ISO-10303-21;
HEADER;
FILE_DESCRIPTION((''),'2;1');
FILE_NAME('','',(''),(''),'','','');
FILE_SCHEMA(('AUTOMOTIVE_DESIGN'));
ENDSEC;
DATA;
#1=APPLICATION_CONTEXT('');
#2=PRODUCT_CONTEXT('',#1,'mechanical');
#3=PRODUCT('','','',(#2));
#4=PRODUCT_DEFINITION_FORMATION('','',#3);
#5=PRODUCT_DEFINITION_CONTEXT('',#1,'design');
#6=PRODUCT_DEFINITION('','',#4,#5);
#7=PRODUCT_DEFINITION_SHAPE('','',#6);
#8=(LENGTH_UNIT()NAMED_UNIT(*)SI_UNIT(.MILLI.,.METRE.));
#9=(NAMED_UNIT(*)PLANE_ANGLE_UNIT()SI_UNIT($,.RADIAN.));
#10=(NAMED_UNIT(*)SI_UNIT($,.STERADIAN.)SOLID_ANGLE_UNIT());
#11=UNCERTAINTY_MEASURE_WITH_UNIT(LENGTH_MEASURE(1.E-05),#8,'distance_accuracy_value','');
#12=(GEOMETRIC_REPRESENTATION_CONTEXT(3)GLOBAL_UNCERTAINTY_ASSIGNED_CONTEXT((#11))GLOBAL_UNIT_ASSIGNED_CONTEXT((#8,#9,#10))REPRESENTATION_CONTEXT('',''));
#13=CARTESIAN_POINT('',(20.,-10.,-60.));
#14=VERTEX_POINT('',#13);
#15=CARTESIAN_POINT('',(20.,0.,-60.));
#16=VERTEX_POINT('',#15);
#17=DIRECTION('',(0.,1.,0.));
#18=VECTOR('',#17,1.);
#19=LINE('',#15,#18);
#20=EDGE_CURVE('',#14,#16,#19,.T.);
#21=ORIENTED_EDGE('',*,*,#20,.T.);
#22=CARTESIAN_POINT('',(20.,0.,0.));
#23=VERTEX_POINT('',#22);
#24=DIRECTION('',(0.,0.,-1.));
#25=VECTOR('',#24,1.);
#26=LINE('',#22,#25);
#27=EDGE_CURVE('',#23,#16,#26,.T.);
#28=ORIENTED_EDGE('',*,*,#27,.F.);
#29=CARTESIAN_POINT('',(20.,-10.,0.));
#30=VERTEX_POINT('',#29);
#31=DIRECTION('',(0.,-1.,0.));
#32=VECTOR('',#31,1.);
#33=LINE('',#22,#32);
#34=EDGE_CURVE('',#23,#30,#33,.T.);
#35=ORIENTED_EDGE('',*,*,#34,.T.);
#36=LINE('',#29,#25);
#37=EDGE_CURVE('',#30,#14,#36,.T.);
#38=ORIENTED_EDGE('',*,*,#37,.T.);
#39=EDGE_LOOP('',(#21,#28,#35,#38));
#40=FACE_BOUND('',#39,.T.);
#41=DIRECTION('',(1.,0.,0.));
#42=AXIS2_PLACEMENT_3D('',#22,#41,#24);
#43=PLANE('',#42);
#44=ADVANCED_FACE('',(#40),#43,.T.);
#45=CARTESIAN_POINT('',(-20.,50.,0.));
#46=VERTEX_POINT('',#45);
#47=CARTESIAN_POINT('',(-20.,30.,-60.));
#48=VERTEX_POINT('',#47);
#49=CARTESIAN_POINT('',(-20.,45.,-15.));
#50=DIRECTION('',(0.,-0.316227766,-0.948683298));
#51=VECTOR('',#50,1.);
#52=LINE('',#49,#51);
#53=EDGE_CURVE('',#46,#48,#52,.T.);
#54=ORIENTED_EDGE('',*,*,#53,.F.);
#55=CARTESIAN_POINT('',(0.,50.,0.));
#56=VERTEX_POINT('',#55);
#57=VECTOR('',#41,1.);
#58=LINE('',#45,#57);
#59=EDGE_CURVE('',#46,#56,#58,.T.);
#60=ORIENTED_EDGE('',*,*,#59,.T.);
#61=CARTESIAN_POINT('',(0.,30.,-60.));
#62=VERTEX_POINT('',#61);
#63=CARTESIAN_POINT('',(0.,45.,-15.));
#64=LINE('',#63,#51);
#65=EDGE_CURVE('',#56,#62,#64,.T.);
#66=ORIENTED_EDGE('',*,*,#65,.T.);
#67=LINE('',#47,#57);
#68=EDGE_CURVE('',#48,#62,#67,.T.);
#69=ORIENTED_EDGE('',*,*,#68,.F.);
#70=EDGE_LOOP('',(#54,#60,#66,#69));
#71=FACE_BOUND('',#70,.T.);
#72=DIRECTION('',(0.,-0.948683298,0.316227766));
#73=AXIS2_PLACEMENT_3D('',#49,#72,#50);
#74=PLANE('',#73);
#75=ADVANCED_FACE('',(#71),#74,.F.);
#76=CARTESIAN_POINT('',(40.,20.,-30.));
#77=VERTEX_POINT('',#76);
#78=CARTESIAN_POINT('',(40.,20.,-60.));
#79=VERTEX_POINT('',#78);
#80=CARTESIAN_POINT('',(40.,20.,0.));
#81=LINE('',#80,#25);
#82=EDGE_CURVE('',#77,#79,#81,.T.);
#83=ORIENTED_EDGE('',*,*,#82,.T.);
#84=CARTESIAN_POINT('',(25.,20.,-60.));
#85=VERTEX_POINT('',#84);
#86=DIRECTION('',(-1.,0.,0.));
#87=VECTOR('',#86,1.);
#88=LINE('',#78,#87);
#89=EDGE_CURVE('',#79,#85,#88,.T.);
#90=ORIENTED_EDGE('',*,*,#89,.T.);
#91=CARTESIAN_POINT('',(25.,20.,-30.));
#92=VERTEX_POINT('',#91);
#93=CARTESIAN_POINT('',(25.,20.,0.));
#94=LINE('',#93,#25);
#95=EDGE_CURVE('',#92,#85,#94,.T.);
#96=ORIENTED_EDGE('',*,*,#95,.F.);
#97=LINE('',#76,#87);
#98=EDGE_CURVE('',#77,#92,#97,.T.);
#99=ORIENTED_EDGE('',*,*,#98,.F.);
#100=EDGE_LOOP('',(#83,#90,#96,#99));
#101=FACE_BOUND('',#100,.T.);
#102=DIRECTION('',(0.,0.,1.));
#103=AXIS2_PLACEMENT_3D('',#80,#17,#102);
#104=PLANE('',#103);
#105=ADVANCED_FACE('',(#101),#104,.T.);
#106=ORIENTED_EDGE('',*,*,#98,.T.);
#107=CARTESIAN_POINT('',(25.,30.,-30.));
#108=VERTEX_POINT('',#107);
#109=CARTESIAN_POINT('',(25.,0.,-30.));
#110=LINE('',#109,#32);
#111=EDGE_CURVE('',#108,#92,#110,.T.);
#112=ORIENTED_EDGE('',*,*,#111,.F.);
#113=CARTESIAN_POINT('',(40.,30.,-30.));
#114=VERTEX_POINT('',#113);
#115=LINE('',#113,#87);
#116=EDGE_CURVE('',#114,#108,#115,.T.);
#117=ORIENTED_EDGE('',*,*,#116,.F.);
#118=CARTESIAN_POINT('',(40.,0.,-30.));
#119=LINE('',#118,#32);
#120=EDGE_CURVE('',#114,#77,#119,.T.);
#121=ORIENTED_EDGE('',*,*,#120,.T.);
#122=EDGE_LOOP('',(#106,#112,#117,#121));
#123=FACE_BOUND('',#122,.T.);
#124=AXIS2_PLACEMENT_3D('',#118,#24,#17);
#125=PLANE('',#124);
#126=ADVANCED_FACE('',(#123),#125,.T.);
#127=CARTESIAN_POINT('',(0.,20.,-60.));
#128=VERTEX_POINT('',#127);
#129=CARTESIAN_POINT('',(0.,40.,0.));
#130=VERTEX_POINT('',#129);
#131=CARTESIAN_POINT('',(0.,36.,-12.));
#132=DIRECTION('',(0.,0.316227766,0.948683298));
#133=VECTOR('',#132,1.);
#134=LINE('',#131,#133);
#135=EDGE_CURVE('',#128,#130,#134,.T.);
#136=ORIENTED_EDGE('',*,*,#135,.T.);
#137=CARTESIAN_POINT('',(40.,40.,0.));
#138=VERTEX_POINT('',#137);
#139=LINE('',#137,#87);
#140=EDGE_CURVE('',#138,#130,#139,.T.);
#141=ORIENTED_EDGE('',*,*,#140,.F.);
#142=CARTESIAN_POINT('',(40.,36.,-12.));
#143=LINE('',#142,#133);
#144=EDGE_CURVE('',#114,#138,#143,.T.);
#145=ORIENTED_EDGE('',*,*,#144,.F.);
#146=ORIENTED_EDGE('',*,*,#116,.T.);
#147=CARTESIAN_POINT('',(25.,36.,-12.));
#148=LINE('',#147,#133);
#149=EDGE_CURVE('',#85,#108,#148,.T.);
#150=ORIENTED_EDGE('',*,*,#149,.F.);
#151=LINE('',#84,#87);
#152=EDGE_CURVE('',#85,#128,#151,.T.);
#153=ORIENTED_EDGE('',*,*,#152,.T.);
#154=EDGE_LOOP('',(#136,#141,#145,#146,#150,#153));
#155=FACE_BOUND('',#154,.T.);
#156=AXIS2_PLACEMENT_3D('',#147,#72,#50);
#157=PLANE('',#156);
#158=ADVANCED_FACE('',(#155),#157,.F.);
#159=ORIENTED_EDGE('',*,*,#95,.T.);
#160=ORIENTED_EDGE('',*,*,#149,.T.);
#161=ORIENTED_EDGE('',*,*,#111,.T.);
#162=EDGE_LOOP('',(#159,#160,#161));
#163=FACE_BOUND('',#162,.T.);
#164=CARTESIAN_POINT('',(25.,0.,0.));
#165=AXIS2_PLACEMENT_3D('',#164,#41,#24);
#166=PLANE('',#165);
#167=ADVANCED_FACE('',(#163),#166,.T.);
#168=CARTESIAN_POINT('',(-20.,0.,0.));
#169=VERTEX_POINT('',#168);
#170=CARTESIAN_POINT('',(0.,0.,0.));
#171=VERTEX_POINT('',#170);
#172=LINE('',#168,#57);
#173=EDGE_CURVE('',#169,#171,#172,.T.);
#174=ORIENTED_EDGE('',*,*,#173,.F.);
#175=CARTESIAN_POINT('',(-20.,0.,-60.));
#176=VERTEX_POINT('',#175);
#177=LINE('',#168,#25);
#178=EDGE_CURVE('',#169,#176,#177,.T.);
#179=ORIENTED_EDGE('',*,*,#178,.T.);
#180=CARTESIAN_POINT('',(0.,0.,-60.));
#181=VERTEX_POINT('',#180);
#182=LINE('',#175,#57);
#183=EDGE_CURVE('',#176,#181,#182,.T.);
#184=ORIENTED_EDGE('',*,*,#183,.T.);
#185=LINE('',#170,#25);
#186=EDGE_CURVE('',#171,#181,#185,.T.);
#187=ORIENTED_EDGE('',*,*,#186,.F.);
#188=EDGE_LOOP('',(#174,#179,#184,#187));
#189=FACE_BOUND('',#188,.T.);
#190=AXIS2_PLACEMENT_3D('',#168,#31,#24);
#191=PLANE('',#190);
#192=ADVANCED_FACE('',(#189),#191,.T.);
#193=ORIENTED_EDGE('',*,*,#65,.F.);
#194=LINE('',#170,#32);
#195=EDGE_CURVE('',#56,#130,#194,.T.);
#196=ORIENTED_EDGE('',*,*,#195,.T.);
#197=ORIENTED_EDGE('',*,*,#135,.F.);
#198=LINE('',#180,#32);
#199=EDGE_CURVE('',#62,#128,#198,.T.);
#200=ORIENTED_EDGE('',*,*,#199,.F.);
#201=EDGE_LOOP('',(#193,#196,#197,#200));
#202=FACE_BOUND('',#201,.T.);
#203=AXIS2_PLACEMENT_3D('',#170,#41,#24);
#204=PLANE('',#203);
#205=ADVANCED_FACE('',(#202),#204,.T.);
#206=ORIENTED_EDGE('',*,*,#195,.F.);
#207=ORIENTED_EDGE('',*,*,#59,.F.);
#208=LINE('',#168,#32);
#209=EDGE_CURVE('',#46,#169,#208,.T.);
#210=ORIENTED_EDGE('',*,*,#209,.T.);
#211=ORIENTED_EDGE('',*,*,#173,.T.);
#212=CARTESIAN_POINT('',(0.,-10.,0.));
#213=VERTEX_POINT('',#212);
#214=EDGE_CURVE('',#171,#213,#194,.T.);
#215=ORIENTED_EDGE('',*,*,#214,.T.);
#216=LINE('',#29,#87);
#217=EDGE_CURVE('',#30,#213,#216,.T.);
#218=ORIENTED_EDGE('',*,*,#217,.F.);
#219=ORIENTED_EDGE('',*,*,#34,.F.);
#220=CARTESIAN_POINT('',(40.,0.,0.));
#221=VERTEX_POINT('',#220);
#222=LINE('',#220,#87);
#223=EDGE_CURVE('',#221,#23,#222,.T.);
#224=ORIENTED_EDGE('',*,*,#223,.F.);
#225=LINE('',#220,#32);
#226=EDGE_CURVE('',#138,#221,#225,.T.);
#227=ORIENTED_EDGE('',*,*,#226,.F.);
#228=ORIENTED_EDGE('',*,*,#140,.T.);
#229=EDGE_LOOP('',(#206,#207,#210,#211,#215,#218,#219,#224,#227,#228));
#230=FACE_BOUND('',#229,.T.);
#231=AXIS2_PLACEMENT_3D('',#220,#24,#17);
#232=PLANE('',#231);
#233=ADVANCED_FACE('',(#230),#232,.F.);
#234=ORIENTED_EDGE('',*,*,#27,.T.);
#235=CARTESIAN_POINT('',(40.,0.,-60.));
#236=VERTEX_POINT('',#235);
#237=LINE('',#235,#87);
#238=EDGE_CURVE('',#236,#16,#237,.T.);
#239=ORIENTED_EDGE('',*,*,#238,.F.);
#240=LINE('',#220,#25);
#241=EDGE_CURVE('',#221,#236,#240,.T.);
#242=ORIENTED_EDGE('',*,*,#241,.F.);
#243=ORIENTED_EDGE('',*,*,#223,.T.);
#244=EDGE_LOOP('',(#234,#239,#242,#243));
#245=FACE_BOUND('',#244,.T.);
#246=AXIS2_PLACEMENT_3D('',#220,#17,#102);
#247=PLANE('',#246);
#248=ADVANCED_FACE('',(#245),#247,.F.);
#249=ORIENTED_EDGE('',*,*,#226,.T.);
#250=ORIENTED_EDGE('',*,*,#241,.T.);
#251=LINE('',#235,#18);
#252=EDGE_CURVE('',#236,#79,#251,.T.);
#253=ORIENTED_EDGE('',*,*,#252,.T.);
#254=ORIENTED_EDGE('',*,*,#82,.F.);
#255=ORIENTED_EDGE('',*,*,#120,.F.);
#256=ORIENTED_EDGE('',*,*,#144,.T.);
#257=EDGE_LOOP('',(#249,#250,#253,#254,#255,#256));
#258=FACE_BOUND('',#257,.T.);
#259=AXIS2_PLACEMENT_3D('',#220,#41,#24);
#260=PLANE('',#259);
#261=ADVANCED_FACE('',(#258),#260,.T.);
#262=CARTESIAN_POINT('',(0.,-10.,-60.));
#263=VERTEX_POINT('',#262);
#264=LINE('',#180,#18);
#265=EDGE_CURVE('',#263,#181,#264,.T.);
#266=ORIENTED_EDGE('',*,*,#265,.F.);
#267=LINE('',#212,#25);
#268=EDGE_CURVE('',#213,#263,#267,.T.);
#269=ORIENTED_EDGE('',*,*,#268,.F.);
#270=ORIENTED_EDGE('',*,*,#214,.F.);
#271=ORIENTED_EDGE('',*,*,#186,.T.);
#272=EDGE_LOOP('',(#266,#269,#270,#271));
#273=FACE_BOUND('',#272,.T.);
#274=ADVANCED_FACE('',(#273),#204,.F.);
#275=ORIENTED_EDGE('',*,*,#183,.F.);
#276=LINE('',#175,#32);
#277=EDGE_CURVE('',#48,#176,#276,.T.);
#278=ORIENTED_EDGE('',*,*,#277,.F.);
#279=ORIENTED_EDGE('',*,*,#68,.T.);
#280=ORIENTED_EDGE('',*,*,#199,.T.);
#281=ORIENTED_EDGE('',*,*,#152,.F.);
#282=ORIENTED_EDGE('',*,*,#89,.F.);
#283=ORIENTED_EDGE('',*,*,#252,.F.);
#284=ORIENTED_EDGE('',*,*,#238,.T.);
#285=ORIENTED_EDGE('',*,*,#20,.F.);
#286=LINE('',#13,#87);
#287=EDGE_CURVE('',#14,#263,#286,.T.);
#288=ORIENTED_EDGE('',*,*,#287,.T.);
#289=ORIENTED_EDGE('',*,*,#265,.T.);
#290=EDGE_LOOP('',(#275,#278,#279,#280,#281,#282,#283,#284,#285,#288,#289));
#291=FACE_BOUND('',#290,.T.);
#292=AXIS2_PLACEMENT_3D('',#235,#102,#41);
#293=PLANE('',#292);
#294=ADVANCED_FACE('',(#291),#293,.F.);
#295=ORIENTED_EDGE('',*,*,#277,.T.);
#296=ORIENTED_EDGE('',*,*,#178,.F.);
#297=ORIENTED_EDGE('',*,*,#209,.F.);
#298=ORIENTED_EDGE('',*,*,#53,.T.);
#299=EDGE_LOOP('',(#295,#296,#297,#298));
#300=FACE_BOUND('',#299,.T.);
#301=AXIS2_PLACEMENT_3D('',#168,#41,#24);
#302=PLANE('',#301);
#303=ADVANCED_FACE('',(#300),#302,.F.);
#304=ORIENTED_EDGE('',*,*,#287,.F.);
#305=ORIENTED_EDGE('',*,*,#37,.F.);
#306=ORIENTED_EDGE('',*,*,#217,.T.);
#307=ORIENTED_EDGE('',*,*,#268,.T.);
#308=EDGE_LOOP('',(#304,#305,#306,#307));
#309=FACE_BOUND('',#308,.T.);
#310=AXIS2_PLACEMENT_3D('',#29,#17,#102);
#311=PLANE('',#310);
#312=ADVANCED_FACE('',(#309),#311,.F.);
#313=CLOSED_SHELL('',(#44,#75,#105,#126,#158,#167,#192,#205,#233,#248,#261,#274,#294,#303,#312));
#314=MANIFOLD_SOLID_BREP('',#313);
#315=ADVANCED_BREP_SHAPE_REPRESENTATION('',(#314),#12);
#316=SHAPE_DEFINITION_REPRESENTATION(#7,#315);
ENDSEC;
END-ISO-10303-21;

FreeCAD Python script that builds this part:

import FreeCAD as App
import Part
import Sketcher

V = App.Vector


def add_polygon(sketch, points):
    """Adds a closed chain of lines whose ends are joined by coincident constraints."""
    first, n = sketch.GeometryCount, len(points)
    for a, b in zip(points, points[1:] + points[:1]):
        sketch.addGeometry(Part.LineSegment(App.Vector(*a, 0), App.Vector(*b, 0)), False)
    for i in range(n):
        sketch.addConstraint(Sketcher.Constraint("Coincident", first + i, 2, first + (i + 1) % n, 1))

doc = App.newDocument("Part")
body = doc.addObject("PartDesign::Body", "Body")

sketch1 = body.newObject("Sketcher::SketchObject", "Sketch")
sketch1.AttachmentSupport = (doc.getObject("YZ_Plane"), [""])
sketch1.MapMode = "FlatFace"
add_polygon(sketch1, [(20, -60), (30, -30), (20, -30)])
sketch1.addConstraint(Sketcher.Constraint("Horizontal", 1))
sketch1.addConstraint(Sketcher.Constraint("Vertical", 2))
sketch1.addConstraint(Sketcher.Constraint("DistanceX", 1, 2, 1, 1, 10.0))
sketch1.addConstraint(Sketcher.Constraint("DistanceY", 2, 2, 2, 1, 30.0))
sketch1.addConstraint(Sketcher.Constraint("DistanceX", -1, 1, 0, 2, 30.0))
sketch1.addConstraint(Sketcher.Constraint("DistanceY", 0, 2, -1, 1, 30.0))
pad1 = body.newObject("PartDesign::Pad", "Pad")
pad1.Profile = sketch1
pad1.Length = 25
body2 = doc.addObject("PartDesign::Body", "Body001")

sketch2 = body2.newObject("Sketcher::SketchObject", "Sketch001")
sketch2.AttachmentSupport = (doc.getObject("YZ_Plane001"), [""])
sketch2.MapMode = "FlatFace"
add_polygon(sketch2, [(0, 0), (-10, 0), (-10, -60), (0, -60)])
sketch2.addConstraint(Sketcher.Constraint("Horizontal", 0))
sketch2.addConstraint(Sketcher.Constraint("Vertical", 1))
sketch2.addConstraint(Sketcher.Constraint("Horizontal", 2))
sketch2.addConstraint(Sketcher.Constraint("Vertical", 3))
sketch2.addConstraint(Sketcher.Constraint("Coincident", 3, 2, -1, 1))
sketch2.addConstraint(Sketcher.Constraint("DistanceX", 0, 2, 0, 1, 10.0))
sketch2.addConstraint(Sketcher.Constraint("DistanceY", 1, 2, 1, 1, 60.0))
pad2 = body2.newObject("PartDesign::Pad", "Pad001")
pad2.Profile = sketch2
pad2.Length = 20
body.AllowCompound = True
doc.recompute()

boolean = body.newObject("PartDesign::Boolean", "Boolean")
boolean.Type = "Fuse"
boolean.addObjects([body2])

sketch3 = body.newObject("Sketcher::SketchObject", "Sketch002")
sketch3.AttachmentSupport = (doc.getObject("YZ_Plane"), [""])
sketch3.MapMode = "FlatFace"
add_polygon(sketch3, [(30, -30), (40, 0), (0, 0), (0, -60), (20, -60), (20, -30)])
sketch3.addConstraint(Sketcher.Constraint("Horizontal", 1))
sketch3.addConstraint(Sketcher.Constraint("Vertical", 2))
sketch3.addConstraint(Sketcher.Constraint("Horizontal", 3))
sketch3.addConstraint(Sketcher.Constraint("Vertical", 4))
sketch3.addConstraint(Sketcher.Constraint("Horizontal", 5))
sketch3.addConstraint(Sketcher.Constraint("Coincident", 1, 2, -1, 1))
sketch3.addConstraint(Sketcher.Constraint("DistanceX", 1, 2, 1, 1, 40.0))
sketch3.addConstraint(Sketcher.Constraint("DistanceX", 3, 1, 3, 2, 20.0))
sketch3.addConstraint(Sketcher.Constraint("DistanceX", 5, 1, 5, 2, 10.0))
sketch3.addConstraint(Sketcher.Constraint("DistanceY", 2, 2, 2, 1, 60.0))
sketch3.addConstraint(Sketcher.Constraint("DistanceY", 4, 1, 4, 2, 30.0))
pad3 = body.newObject("PartDesign::Pad", "Pad002")
pad3.Profile = sketch3
pad3.Length = 40

sketch4 = body.newObject("Sketcher::SketchObject", "Sketch003")
sketch4.AttachmentSupport = (doc.getObject("YZ_Plane"), [""])
sketch4.MapMode = "FlatFace"
add_polygon(sketch4, [(0, -60), (30, -60), (50, 0), (0, 0)])
sketch4.addConstraint(Sketcher.Constraint("Horizontal", 0))
sketch4.addConstraint(Sketcher.Constraint("Horizontal", 2))
sketch4.addConstraint(Sketcher.Constraint("Vertical", 3))
sketch4.addConstraint(Sketcher.Constraint("Coincident", 2, 2, -1, 1))
sketch4.addConstraint(Sketcher.Constraint("DistanceX", 0, 1, 0, 2, 30.0))
sketch4.addConstraint(Sketcher.Constraint("DistanceX", 2, 2, 2, 1, 50.0))
sketch4.addConstraint(Sketcher.Constraint("DistanceY", 3, 2, 3, 1, 60.0))
pad4 = body.newObject("PartDesign::Pad", "Pad003")
pad4.Profile = sketch4
pad4.Length = 20
pad4.Reversed = True

doc.recompute()
